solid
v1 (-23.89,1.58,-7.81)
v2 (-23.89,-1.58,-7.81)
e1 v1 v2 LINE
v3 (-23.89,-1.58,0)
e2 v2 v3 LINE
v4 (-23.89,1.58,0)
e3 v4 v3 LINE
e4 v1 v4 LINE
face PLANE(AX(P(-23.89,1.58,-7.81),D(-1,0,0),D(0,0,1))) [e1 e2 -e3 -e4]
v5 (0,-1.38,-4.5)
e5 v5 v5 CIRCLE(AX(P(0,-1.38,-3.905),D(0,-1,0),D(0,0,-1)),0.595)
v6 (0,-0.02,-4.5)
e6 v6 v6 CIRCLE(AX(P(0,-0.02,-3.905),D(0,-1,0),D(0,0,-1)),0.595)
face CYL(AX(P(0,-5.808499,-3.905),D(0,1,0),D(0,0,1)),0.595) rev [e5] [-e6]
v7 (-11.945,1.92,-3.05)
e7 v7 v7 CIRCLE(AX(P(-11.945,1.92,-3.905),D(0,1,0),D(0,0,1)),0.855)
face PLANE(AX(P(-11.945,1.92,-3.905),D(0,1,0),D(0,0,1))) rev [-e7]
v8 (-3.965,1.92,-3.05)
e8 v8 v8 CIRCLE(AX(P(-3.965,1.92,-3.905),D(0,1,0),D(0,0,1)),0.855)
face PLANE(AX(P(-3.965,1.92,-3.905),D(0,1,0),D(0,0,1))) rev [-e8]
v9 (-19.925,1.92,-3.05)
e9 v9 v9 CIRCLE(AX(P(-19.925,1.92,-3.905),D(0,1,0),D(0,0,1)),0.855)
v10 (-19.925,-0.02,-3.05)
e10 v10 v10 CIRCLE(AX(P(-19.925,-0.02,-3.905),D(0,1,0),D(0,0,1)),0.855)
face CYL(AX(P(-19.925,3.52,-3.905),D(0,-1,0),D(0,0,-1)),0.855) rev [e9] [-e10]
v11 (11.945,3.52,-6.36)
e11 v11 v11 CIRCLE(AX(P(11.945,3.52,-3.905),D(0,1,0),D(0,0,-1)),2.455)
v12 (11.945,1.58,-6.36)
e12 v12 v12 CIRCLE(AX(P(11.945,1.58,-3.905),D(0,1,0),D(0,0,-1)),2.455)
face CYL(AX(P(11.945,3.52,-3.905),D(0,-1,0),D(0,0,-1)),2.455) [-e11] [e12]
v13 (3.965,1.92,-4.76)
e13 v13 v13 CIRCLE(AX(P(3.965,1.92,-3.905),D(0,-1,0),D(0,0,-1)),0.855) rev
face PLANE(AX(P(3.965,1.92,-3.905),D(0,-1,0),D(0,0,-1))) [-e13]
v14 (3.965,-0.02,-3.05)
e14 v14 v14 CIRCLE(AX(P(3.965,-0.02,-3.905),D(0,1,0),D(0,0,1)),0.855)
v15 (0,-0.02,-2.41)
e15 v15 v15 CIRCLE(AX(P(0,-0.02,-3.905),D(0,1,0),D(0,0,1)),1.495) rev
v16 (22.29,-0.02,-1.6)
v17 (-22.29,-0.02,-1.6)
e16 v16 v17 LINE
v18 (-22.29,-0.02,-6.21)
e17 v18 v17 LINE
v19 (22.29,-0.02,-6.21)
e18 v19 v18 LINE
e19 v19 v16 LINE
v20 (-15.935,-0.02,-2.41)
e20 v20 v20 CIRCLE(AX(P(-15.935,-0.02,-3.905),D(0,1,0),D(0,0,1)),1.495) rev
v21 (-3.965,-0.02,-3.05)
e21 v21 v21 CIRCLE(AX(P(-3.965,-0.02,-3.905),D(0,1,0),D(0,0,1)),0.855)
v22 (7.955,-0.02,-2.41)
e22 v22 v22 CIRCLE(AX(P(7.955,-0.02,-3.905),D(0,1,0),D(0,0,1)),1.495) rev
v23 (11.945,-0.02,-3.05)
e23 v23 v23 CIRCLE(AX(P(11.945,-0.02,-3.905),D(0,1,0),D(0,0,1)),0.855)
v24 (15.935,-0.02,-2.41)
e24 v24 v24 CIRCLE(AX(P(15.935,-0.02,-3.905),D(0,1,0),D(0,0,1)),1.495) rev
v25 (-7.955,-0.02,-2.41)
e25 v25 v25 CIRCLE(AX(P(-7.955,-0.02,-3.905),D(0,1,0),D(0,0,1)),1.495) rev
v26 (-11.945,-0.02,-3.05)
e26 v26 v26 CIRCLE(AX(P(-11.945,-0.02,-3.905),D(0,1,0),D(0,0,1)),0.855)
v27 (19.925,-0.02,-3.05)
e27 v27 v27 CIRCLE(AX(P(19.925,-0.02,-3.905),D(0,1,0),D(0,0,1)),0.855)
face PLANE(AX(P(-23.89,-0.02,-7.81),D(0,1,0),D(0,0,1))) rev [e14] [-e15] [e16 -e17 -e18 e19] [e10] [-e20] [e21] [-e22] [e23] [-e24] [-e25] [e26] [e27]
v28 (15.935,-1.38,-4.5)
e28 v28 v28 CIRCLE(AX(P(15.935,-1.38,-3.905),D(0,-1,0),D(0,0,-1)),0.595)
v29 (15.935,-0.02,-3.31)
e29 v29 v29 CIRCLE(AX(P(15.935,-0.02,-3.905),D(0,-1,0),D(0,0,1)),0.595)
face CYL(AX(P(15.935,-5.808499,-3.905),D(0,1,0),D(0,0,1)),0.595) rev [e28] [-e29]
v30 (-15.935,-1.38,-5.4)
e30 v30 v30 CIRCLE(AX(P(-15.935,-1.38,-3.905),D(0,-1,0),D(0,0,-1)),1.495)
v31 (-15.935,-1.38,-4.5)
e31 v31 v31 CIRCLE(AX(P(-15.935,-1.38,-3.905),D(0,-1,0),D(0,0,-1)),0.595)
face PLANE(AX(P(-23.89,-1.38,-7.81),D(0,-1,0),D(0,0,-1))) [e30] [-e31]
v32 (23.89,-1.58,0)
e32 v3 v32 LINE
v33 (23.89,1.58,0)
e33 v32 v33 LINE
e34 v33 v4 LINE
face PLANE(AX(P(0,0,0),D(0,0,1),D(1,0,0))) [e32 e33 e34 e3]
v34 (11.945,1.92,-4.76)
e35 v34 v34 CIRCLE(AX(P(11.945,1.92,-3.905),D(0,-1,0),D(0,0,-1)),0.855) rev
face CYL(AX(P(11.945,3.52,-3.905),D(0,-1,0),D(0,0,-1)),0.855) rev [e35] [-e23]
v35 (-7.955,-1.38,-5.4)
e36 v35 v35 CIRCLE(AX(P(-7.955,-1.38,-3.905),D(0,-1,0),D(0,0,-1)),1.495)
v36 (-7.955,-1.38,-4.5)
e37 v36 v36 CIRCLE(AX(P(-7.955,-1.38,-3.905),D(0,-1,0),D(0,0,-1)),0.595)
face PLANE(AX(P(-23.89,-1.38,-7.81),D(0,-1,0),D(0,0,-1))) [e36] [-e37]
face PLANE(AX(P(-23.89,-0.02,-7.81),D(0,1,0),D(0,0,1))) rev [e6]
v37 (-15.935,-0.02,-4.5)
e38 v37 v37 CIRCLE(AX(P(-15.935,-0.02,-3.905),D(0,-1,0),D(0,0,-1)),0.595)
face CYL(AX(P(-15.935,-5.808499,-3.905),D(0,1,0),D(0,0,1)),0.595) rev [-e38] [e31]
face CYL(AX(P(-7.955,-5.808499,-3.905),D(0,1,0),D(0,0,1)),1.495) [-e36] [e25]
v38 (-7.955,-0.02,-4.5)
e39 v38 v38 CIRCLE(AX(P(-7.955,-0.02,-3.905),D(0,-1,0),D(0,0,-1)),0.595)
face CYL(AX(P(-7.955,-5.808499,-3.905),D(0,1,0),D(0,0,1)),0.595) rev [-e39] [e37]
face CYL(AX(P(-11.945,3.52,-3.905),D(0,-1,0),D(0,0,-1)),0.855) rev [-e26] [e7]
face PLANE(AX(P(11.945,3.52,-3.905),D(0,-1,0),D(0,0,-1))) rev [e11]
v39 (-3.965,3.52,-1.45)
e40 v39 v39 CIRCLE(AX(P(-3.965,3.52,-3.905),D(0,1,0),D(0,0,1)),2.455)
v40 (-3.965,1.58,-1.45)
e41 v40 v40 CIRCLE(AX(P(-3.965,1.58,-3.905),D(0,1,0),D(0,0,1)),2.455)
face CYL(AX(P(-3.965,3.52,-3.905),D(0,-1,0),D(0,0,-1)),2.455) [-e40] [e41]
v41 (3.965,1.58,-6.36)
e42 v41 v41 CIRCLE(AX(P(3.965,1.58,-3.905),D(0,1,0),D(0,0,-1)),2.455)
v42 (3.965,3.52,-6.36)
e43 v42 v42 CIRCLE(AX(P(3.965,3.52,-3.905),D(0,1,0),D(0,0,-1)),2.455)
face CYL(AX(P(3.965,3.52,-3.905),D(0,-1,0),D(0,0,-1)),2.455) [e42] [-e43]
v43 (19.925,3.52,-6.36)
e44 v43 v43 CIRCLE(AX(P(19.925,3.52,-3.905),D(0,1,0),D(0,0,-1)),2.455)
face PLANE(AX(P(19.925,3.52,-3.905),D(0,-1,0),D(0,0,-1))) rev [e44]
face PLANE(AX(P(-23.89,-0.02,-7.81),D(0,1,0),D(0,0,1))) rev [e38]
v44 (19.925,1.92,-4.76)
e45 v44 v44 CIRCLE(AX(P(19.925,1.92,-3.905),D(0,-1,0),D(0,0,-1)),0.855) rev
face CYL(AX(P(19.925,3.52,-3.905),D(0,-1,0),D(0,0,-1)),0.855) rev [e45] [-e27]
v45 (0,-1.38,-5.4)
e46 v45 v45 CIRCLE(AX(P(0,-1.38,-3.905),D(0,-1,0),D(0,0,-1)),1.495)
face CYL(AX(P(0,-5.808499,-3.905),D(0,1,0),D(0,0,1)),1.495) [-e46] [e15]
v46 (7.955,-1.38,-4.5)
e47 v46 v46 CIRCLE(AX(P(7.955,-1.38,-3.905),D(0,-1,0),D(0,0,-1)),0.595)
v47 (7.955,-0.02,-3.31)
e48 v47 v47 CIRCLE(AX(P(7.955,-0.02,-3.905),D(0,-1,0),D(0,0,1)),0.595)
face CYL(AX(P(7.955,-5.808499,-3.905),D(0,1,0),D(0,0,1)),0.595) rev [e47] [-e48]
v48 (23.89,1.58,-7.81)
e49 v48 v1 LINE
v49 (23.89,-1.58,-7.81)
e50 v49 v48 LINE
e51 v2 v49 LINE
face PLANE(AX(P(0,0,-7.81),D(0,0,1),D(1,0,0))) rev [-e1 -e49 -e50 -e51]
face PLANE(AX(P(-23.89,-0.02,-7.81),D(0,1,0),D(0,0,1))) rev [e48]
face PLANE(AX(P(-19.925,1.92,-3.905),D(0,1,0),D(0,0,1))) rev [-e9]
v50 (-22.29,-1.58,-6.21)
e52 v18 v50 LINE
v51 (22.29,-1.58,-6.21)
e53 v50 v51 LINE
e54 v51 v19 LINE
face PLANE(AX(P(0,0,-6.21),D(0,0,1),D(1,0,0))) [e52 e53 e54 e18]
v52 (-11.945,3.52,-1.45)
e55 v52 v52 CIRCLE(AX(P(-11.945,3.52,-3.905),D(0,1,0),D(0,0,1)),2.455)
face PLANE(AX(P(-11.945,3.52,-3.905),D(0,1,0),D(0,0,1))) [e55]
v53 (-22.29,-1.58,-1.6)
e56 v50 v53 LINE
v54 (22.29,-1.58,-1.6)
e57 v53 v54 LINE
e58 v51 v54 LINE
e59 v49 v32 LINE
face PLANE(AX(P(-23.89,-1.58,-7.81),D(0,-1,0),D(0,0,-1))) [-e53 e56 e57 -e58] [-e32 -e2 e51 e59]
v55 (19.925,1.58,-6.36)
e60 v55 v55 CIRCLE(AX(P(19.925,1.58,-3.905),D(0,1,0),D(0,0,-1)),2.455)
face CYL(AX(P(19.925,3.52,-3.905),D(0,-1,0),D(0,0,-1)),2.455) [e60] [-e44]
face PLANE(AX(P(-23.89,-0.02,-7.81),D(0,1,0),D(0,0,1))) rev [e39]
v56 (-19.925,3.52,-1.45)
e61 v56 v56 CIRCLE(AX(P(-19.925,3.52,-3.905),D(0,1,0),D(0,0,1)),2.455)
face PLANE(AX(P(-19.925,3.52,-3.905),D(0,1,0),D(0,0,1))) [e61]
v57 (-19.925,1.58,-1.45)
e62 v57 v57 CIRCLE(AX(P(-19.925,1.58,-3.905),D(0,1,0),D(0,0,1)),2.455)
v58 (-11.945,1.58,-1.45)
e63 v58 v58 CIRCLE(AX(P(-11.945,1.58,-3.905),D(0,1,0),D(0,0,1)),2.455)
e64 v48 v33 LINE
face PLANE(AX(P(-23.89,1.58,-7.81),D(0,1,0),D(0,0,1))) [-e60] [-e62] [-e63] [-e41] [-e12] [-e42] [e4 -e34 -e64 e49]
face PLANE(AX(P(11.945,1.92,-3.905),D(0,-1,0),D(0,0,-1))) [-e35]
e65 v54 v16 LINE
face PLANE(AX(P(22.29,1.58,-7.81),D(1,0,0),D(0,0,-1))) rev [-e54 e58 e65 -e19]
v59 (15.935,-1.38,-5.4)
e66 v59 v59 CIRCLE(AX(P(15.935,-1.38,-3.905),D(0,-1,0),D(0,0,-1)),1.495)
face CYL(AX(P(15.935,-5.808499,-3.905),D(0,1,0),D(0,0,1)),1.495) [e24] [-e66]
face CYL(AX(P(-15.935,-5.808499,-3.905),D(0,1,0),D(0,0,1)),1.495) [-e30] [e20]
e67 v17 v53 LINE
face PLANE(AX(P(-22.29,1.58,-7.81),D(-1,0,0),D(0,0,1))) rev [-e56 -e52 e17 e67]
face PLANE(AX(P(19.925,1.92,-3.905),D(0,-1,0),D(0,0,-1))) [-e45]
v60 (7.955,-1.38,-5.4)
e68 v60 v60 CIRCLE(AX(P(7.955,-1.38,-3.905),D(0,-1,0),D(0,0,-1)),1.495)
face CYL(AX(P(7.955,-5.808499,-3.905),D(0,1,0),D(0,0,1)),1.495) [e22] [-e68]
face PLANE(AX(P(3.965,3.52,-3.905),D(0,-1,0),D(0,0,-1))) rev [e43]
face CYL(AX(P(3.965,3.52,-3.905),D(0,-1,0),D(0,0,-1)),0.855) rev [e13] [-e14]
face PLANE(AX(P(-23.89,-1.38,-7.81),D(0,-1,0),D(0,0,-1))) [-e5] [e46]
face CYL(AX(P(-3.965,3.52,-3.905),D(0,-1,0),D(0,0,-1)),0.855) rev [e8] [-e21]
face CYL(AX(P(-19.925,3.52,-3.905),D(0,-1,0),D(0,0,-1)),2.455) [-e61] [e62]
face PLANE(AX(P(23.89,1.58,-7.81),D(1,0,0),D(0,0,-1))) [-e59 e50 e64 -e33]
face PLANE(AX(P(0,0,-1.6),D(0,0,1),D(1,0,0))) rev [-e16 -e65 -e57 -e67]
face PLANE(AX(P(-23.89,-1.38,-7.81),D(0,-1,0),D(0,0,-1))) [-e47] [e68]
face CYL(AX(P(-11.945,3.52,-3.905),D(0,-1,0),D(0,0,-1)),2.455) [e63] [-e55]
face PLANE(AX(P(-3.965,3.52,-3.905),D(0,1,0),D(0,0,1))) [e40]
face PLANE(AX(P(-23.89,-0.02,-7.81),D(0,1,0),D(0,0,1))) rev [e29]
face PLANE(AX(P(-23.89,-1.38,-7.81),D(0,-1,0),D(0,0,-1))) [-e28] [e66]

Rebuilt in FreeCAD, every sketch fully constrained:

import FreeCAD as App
import Part
import Sketcher
Q = App.Units.Quantity


def faces_at(feature, points):
    """Names of the faces that lie closest to the given points."""
    faces = feature.Shape.Faces
    near = lambda p: min(range(len(faces)), key=lambda i: faces[i].distToShape(Part.Vertex(*p))[0])
    return sorted({f"Face{near(p) + 1}" for p in points})

doc = App.newDocument("Part")
body = doc.addObject("PartDesign::Body", "Body")

# Sketch on XY plane
sketch1 = body.newObject("Sketcher::SketchObject", "Sketch")
sketch1.AttachmentSupport = (doc.getObject("XY_Plane"), [""])
sketch1.MapMode = "FlatFace"
sketch1.addGeometry(Part.LineSegment(App.Vector(-23.89, 1.58, 0), App.Vector(-23.89, -1.58, 0)), False)
sketch1.addGeometry(Part.LineSegment(App.Vector(-23.89, -1.58, 0), App.Vector(23.89, -1.58, 0)), False)
sketch1.addGeometry(Part.LineSegment(App.Vector(23.89, -1.58, 0), App.Vector(23.89, 1.58, 0)), False)
sketch1.addGeometry(Part.LineSegment(App.Vector(23.89, 1.58, 0), App.Vector(-23.89, 1.58, 0)), False)
sketch1.addConstraint(Sketcher.Constraint("Coincident", 0, 2, 1, 1))
sketch1.addConstraint(Sketcher.Constraint("Coincident", 1, 2, 2, 1))
sketch1.addConstraint(Sketcher.Constraint("Coincident", 2, 2, 3, 1))
sketch1.addConstraint(Sketcher.Constraint("Coincident", 3, 2, 0, 1))
sketch1.addConstraint(Sketcher.Constraint("Vertical", 0))
sketch1.addConstraint(Sketcher.Constraint("Horizontal", 1))
sketch1.addConstraint(Sketcher.Constraint("Vertical", 2))
sketch1.addConstraint(Sketcher.Constraint("Horizontal", 3))
sketch1.addConstraint(Sketcher.Constraint("Symmetric", 0, 2, 2, 2, -1, 1))
sketch1.addConstraint(Sketcher.Constraint("DistanceX", 1, 1, 1, 2, Q("47.78 mm")))
sketch1.addConstraint(Sketcher.Constraint("DistanceY", 0, 2, 0, 1, Q("3.16 mm")))
pad1 = body.newObject("PartDesign::Pad", "Pad")
pad1.Profile = sketch1
pad1.Length = 7.81
pad1.Reversed = True

# Sketch on XZ plane
sketch2 = body.newObject("Sketcher::SketchObject", "Sketch001")
sketch2.AttachmentSupport = (doc.getObject("XZ_Plane"), [""])
sketch2.MapMode = "FlatFace"
sketch2.AttachmentOffset = App.Placement(App.Vector(0, 0, -1.58), App.Rotation())
sketch2.addGeometry(Part.Circle(App.Vector(-19.925, -3.905, 0), App.Vector(0, 0, 1), 2.455), False)
sketch2.addGeometry(Part.Circle(App.Vector(-11.945, -3.905, 0), App.Vector(0, 0, 1), 2.455), False)
sketch2.addGeometry(Part.Circle(App.Vector(-3.965, -3.905, 0), App.Vector(0, 0, 1), 2.455), False)
sketch2.addGeometry(Part.Circle(App.Vector(3.965, -3.905, 0), App.Vector(0, 0, 1), 2.455), False)
sketch2.addGeometry(Part.Circle(App.Vector(11.945, -3.905, 0), App.Vector(0, 0, 1), 2.455), False)
sketch2.addGeometry(Part.Circle(App.Vector(19.925, -3.905, 0), App.Vector(0, 0, 1), 2.455), False)
sketch2.addConstraint(Sketcher.Constraint("Equal", 0, 1))
sketch2.addConstraint(Sketcher.Constraint("Equal", 1, 2))
sketch2.addConstraint(Sketcher.Constraint("Equal", 2, 3))
sketch2.addConstraint(Sketcher.Constraint("Equal", 3, 4))
sketch2.addConstraint(Sketcher.Constraint("Equal", 4, 5))
sketch2.addConstraint(Sketcher.Constraint("Symmetric", 2, 3, 3, 3, -2))
sketch2.addConstraint(Sketcher.Constraint("Symmetric", 1, 3, 4, 3, -2))
sketch2.addConstraint(Sketcher.Constraint("Symmetric", 0, 3, 5, 3, -2))
sketch2.addConstraint(Sketcher.Constraint("Horizontal", 0, 3, 1, 3))
sketch2.addConstraint(Sketcher.Constraint("Horizontal", 1, 3, 2, 3))
sketch2.addConstraint(Sketcher.Constraint("Diameter", 0, Q("4.91 mm")))
sketch2.addConstraint(Sketcher.Constraint("DistanceX", 0, 3, 1, 3, Q("7.98 mm")))
sketch2.addConstraint(Sketcher.Constraint("DistanceX", 1, 3, 2, 3, Q("7.98 mm")))
sketch2.addConstraint(Sketcher.Constraint("DistanceX", 2, 3, 3, 3, Q("7.93 mm")))
sketch2.addConstraint(Sketcher.Constraint("DistanceY", 0, 3, -1, 1, Q("3.905 mm")))
pad2 = body.newObject("PartDesign::Pad", "Pad001")
pad2.Profile = sketch2
pad2.Length = 1.94
pad2.Reversed = True
doc.recompute()

thickness = body.newObject("PartDesign::Thickness", "Thickness")
thickness.Base = (pad2, faces_at(pad2, [(0, -1.58, -3.905)]))
thickness.Value = 1.6
thickness.Reversed = True
thickness.Join = "Intersection"

# Sketch on XZ plane
sketch3 = body.newObject("Sketcher::SketchObject", "Sketch002")
sketch3.AttachmentSupport = (doc.getObject("XZ_Plane"), [""])
sketch3.MapMode = "FlatFace"
sketch3.AttachmentOffset = App.Placement(App.Vector(0, 0, 0.02), App.Rotation())
sketch3.addGeometry(Part.Circle(App.Vector(-15.935, -3.905, 0), App.Vector(0, 0, 1), 1.495), False)
sketch3.addGeometry(Part.Circle(App.Vector(-15.935, -3.905, 0), App.Vector(0, 0, 1), 0.595), False)
sketch3.addGeometry(Part.Circle(App.Vector(-7.955, -3.905, 0), App.Vector(0, 0, 1), 1.495), False)
sketch3.addGeometry(Part.Circle(App.Vector(-7.955, -3.905, 0), App.Vector(0, 0, 1), 0.595), False)
sketch3.addGeometry(Part.Circle(App.Vector(0, -3.905, 0), App.Vector(0, 0, 1), 1.495), False)
sketch3.addGeometry(Part.Circle(App.Vector(0, -3.905, 0), App.Vector(0, 0, 1), 0.595), False)
sketch3.addGeometry(Part.Circle(App.Vector(7.955, -3.905, 0), App.Vector(0, 0, 1), 1.495), False)
sketch3.addGeometry(Part.Circle(App.Vector(7.955, -3.905, 0), App.Vector(0, 0, 1), 0.595), False)
sketch3.addGeometry(Part.Circle(App.Vector(15.935, -3.905, 0), App.Vector(0, 0, 1), 1.495), False)
sketch3.addGeometry(Part.Circle(App.Vector(15.935, -3.905, 0), App.Vector(0, 0, 1), 0.595), False)
sketch3.addConstraint(Sketcher.Constraint("Coincident", 1, 3, 0, 3))
sketch3.addConstraint(Sketcher.Constraint("Coincident", 3, 3, 2, 3))
sketch3.addConstraint(Sketcher.Constraint("Coincident", 5, 3, 4, 3))
sketch3.addConstraint(Sketcher.Constraint("Coincident", 7, 3, 6, 3))
sketch3.addConstraint(Sketcher.Constraint("Coincident", 9, 3, 8, 3))
sketch3.addConstraint(Sketcher.Constraint("Equal", 0, 2))
sketch3.addConstraint(Sketcher.Constraint("Equal", 1, 3))
sketch3.addConstraint(Sketcher.Constraint("Equal", 2, 4))
sketch3.addConstraint(Sketcher.Constraint("Equal", 3, 5))
sketch3.addConstraint(Sketcher.Constraint("Equal", 4, 6))
sketch3.addConstraint(Sketcher.Constraint("Equal", 5, 7))
sketch3.addConstraint(Sketcher.Constraint("Equal", 6, 8))
sketch3.addConstraint(Sketcher.Constraint("Equal", 7, 9))
sketch3.addConstraint(Sketcher.Constraint("Symmetric", 2, 3, 6, 3, -2))
sketch3.addConstraint(Sketcher.Constraint("Symmetric", 0, 3, 8, 3, -2))
sketch3.addConstraint(Sketcher.Constraint("PointOnObject", 4, 3, -2))
sketch3.addConstraint(Sketcher.Constraint("Horizontal", 1, 3, 2, 3))
sketch3.addConstraint(Sketcher.Constraint("Horizontal", 3, 3, 4, 3))
sketch3.addConstraint(Sketcher.Constraint("Diameter", 0, Q("2.99 mm")))
sketch3.addConstraint(Sketcher.Constraint("Diameter", 1, Q("1.19 mm")))
sketch3.addConstraint(Sketcher.Constraint("DistanceX", 0, 3, 2, 3, Q("7.98 mm")))
sketch3.addConstraint(Sketcher.Constraint("DistanceX", 2, 3, 6, 3, Q("15.91 mm")))
sketch3.addConstraint(Sketcher.Constraint("DistanceY", 0, 3, -1, 1, Q("3.905 mm")))
pad3 = body.newObject("PartDesign::Pad", "Pad002")
pad3.Profile = sketch3
pad3.Length = 1.36

doc.recompute()
